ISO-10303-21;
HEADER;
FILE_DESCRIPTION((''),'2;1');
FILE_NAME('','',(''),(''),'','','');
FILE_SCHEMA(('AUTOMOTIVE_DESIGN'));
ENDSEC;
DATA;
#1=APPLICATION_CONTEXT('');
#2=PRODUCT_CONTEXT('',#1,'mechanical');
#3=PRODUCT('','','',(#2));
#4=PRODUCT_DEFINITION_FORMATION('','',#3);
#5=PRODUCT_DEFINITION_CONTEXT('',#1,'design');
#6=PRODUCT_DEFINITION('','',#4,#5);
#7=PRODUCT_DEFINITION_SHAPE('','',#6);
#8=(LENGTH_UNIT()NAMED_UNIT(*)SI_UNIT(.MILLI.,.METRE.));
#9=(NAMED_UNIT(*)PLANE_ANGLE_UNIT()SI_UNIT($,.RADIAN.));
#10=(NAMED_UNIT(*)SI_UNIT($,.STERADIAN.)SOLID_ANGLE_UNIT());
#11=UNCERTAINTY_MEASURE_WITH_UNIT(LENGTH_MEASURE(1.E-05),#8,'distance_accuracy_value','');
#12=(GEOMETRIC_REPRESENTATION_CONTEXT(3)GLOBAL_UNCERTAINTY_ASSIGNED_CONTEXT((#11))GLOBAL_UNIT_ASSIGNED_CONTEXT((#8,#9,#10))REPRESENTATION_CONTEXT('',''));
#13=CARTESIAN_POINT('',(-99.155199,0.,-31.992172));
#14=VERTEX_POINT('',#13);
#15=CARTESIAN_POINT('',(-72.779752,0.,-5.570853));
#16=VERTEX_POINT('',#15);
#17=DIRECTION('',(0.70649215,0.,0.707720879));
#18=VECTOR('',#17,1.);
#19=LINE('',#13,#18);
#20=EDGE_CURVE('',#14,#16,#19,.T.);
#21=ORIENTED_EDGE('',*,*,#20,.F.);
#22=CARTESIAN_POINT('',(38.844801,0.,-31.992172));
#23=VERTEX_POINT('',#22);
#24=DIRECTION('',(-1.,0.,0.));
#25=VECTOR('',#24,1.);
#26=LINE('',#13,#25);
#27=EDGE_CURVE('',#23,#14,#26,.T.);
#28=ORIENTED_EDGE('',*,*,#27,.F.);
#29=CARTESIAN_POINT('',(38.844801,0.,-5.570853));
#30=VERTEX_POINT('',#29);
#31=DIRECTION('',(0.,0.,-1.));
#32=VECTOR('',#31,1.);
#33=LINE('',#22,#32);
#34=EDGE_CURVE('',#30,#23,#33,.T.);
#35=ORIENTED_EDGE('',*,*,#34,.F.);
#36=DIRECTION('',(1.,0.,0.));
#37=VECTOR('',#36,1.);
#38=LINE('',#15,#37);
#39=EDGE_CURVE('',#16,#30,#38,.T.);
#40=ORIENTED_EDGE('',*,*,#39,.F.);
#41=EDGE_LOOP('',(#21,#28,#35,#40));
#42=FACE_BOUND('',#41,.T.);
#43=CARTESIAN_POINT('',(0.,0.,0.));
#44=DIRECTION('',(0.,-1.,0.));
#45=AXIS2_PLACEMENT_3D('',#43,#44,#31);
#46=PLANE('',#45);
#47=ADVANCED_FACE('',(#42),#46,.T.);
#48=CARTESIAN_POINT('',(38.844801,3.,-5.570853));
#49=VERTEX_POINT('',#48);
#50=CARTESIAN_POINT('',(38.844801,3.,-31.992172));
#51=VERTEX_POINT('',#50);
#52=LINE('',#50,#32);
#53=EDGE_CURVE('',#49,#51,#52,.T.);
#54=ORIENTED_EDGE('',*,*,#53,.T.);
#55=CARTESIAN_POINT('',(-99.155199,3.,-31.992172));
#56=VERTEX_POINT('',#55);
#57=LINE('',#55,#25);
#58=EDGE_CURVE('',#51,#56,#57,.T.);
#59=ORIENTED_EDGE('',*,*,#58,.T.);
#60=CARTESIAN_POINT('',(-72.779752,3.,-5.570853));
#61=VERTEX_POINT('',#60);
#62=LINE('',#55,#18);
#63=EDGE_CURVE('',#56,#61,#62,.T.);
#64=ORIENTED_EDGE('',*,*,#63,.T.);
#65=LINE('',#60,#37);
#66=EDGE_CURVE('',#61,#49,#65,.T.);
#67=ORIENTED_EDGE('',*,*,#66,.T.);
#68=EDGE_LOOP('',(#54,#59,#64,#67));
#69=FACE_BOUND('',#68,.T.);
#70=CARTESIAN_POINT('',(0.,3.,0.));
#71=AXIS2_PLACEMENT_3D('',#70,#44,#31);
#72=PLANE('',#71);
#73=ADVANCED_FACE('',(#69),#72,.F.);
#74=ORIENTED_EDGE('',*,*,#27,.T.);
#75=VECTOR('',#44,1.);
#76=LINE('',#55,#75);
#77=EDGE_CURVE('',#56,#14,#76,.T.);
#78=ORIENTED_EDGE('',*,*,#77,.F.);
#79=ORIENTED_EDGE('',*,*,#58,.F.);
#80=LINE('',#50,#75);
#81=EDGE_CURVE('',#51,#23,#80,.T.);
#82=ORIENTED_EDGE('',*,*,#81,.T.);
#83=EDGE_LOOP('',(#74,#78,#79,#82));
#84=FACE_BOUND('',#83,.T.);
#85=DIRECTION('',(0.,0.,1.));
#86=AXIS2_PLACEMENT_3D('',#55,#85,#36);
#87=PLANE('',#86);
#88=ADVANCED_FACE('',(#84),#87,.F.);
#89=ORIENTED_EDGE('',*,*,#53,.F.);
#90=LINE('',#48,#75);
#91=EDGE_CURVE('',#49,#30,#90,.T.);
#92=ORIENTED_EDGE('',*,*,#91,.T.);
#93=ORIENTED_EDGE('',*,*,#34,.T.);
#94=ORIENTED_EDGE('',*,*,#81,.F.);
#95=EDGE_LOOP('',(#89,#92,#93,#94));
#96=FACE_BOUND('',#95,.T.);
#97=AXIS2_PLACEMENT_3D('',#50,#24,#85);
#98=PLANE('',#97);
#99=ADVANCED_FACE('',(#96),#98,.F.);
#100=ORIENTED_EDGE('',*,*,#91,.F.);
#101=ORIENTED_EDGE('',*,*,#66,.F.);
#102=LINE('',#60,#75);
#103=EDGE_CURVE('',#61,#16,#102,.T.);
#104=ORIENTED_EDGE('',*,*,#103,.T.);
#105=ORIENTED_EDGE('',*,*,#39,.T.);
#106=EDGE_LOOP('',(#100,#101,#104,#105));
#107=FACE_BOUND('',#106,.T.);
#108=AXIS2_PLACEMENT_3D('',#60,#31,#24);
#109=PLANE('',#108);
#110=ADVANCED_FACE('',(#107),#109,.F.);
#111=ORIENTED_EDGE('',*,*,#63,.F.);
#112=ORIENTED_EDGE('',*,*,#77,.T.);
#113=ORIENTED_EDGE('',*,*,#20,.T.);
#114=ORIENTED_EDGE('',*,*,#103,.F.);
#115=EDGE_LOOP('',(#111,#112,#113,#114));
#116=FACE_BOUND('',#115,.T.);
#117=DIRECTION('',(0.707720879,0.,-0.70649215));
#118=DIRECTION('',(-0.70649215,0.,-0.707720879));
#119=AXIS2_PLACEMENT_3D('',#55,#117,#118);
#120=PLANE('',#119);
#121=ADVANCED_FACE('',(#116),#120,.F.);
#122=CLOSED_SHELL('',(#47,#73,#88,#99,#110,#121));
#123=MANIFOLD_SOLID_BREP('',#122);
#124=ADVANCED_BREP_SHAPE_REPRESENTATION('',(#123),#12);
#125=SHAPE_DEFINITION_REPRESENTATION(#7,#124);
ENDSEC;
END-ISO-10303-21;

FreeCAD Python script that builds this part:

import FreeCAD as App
import Part
import Sketcher

V = App.Vector
Q = App.Units.Quantity

doc = App.newDocument("Part")
body = doc.addObject("PartDesign::Body", "Body")

# Sketch on XZ plane
sketch1 = doc.addObject("Sketcher::SketchObject", "Sketch")
body.addObject(sketch1)
sketch1.AttachmentSupport = (doc.XZ_Plane, [""])
sketch1.MapMode = "FlatFace"
sketch1.addGeometry([
    Part.LineSegment(V(-99, -32, 0), V(-73, -6, 0)),
    Part.LineSegment(V(-73, -6, 0), V(39, -6, 0)),
    Part.LineSegment(V(39, -6, 0), V(39, -32, 0)),
    Part.LineSegment(V(39, -32, 0), V(-99, -32, 0)),
], False)
sketch1.addConstraint([
    Sketcher.Constraint("Coincident", 0, 2, 1, 1),
    Sketcher.Constraint("Coincident", 1, 2, 2, 1),
    Sketcher.Constraint("Coincident", 2, 2, 3, 1),
    Sketcher.Constraint("Coincident", 3, 2, 0, 1),
    Sketcher.Constraint("Horizontal", 1),
    Sketcher.Constraint("Vertical", 2),
    Sketcher.Constraint("Horizontal", 3),
    Sketcher.Constraint("DistanceX", 3, 2, 3, 1, Q("138 mm")),
    Sketcher.Constraint("DistanceY", 2, 2, 2, 1, Q("26.421319 mm")),
    Sketcher.Constraint("DistanceX", -1, 1, 1, 2, Q("38.844801 mm")),
    Sketcher.Constraint("DistanceX", 1, 1, 1, 2, Q("111.624553 mm")),
    Sketcher.Constraint("DistanceY", 2, 2, -1, 1, Q("31.992172 mm")),
])
pad1 = doc.addObject("PartDesign::Pad", "Pad")
body.addObject(pad1)
pad1.Profile = sketch1
pad1.Length = 3
pad1.Reversed = True

doc.recompute()
